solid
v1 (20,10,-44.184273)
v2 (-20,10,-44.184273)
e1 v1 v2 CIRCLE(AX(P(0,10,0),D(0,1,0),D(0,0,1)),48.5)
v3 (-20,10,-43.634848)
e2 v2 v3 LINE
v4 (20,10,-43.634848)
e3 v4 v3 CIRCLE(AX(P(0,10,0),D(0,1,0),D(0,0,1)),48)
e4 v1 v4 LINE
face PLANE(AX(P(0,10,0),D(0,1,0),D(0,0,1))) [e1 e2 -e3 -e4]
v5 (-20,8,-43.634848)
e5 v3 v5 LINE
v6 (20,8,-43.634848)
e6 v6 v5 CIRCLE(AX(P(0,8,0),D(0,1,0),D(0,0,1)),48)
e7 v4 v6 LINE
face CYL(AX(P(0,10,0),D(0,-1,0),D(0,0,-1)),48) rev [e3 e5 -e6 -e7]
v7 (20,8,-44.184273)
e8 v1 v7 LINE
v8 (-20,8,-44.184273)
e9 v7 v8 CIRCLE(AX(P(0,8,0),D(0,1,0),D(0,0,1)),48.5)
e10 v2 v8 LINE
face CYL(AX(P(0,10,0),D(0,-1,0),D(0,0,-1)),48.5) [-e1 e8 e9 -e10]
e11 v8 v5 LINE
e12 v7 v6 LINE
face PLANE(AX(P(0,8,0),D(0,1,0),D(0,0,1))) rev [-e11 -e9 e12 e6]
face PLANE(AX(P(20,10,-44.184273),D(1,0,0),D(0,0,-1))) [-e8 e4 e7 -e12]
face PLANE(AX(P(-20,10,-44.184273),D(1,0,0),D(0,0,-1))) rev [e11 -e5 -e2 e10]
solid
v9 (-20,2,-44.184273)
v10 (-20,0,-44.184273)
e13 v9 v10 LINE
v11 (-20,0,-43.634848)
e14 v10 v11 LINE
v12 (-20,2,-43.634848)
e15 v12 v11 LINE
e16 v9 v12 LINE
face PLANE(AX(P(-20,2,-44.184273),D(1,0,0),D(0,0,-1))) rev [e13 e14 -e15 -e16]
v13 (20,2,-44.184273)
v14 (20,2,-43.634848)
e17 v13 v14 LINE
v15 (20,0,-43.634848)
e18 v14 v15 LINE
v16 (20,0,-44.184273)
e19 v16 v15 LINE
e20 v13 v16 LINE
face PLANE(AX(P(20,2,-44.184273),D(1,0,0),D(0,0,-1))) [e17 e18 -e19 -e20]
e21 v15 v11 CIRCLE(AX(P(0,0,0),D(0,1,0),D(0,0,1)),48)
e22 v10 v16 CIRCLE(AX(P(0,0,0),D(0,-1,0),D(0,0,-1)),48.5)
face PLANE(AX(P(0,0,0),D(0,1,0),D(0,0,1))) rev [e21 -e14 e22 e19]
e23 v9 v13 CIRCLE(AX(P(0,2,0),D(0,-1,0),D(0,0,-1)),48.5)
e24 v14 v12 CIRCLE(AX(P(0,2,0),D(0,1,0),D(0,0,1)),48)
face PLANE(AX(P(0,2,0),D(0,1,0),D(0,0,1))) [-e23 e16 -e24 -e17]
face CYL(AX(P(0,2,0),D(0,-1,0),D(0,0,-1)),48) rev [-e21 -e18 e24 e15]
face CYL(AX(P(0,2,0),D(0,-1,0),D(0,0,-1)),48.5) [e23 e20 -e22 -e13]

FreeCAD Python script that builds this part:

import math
import FreeCAD as App
import Part
import Sketcher

V = App.Vector

doc = App.newDocument("Part")
body = doc.addObject("PartDesign::Body", "Body")

sketch1 = body.newObject("Sketcher::SketchObject", "Sketch")
sketch1.AttachmentSupport = (doc.getObject("XZ_Plane"), [""])
sketch1.MapMode = "FlatFace"
sketch1.addGeometry([
    Part.LineSegment(V(-20, -44.2, 0), V(-20, -43.6, 0)),
    Part.ArcOfCircle(Part.Circle(V(0, 0, 0), V(0, 0, 1), 48), math.radians(-115), math.radians(-65)),
    Part.LineSegment(V(20, -43.6, 0), V(20, -44.2, 0)),
    Part.ArcOfCircle(Part.Circle(V(0, 0, 0), V(0, 0, 1), 48.5), math.radians(-114), math.radians(-66)),
], False)
sketch1.addConstraint([
    Sketcher.Constraint("Coincident", 0, 2, 1, 1),
    Sketcher.Constraint("Coincident", 1, 2, 2, 1),
    Sketcher.Constraint("Coincident", 2, 2, 3, 2),
    Sketcher.Constraint("Coincident", 3, 1, 0, 1),
    Sketcher.Constraint("Vertical", 0),
    Sketcher.Constraint("Vertical", 2),
    Sketcher.Constraint("Coincident", 1, 3, -1, 1),
    Sketcher.Constraint("Coincident", 3, 3, -1, 1),
    Sketcher.Constraint("Horizontal", 0, 2, 1, 2),
    Sketcher.Constraint("Radius", 1, 48.0),
    Sketcher.Constraint("Radius", 3, 48.5),
    Sketcher.Constraint("DistanceX", 0, 2, -1, 1, 20.0),
])
pad1 = body.newObject("PartDesign::Pad", "Pad")
pad1.Profile = sketch1
pad1.Length = 2
pad1.Reversed = True
body2 = doc.addObject("PartDesign::Body", "Body001")

sketch2 = body2.newObject("Sketcher::SketchObject", "Sketch001")
sketch2.AttachmentSupport = (doc.getObject("XZ_Plane001"), [""])
sketch2.MapMode = "FlatFace"
sketch2.AttachmentOffset = App.Placement(V(0, 0, -8), App.Rotation())
sketch2.addGeometry([
    Part.LineSegment(V(20, -43.6, 0), V(20, -44.2, 0)),
    Part.ArcOfCircle(Part.Circle(V(0, 0, 0), V(0, 0, 1), 48.5), math.radians(-114), math.radians(-66)),
    Part.LineSegment(V(-20, -44.2, 0), V(-20, -43.6, 0)),
    Part.ArcOfCircle(Part.Circle(V(0, 0, 0), V(0, 0, 1), 48), math.radians(-115), math.radians(-65)),
], False)
sketch2.addConstraint([
    Sketcher.Constraint("Coincident", 0, 2, 1, 2),
    Sketcher.Constraint("Coincident", 1, 1, 2, 1),
    Sketcher.Constraint("Coincident", 2, 2, 3, 1),
    Sketcher.Constraint("Coincident", 3, 2, 0, 1),
    Sketcher.Constraint("Vertical", 0),
    Sketcher.Constraint("Vertical", 2),
    Sketcher.Constraint("Coincident", 1, 3, -1, 1),
    Sketcher.Constraint("Coincident", 3, 3, -1, 1),
    Sketcher.Constraint("Horizontal", 0, 2, 1, 1),
    Sketcher.Constraint("Radius", 3, 48.0),
    Sketcher.Constraint("Radius", 1, 48.5),
    Sketcher.Constraint("DistanceX", -1, 1, 0, 2, 20.0),
])
pad2 = body2.newObject("PartDesign::Pad", "Pad001")
pad2.Profile = sketch2
pad2.Length = 2
pad2.Reversed = True

doc.recompute()
